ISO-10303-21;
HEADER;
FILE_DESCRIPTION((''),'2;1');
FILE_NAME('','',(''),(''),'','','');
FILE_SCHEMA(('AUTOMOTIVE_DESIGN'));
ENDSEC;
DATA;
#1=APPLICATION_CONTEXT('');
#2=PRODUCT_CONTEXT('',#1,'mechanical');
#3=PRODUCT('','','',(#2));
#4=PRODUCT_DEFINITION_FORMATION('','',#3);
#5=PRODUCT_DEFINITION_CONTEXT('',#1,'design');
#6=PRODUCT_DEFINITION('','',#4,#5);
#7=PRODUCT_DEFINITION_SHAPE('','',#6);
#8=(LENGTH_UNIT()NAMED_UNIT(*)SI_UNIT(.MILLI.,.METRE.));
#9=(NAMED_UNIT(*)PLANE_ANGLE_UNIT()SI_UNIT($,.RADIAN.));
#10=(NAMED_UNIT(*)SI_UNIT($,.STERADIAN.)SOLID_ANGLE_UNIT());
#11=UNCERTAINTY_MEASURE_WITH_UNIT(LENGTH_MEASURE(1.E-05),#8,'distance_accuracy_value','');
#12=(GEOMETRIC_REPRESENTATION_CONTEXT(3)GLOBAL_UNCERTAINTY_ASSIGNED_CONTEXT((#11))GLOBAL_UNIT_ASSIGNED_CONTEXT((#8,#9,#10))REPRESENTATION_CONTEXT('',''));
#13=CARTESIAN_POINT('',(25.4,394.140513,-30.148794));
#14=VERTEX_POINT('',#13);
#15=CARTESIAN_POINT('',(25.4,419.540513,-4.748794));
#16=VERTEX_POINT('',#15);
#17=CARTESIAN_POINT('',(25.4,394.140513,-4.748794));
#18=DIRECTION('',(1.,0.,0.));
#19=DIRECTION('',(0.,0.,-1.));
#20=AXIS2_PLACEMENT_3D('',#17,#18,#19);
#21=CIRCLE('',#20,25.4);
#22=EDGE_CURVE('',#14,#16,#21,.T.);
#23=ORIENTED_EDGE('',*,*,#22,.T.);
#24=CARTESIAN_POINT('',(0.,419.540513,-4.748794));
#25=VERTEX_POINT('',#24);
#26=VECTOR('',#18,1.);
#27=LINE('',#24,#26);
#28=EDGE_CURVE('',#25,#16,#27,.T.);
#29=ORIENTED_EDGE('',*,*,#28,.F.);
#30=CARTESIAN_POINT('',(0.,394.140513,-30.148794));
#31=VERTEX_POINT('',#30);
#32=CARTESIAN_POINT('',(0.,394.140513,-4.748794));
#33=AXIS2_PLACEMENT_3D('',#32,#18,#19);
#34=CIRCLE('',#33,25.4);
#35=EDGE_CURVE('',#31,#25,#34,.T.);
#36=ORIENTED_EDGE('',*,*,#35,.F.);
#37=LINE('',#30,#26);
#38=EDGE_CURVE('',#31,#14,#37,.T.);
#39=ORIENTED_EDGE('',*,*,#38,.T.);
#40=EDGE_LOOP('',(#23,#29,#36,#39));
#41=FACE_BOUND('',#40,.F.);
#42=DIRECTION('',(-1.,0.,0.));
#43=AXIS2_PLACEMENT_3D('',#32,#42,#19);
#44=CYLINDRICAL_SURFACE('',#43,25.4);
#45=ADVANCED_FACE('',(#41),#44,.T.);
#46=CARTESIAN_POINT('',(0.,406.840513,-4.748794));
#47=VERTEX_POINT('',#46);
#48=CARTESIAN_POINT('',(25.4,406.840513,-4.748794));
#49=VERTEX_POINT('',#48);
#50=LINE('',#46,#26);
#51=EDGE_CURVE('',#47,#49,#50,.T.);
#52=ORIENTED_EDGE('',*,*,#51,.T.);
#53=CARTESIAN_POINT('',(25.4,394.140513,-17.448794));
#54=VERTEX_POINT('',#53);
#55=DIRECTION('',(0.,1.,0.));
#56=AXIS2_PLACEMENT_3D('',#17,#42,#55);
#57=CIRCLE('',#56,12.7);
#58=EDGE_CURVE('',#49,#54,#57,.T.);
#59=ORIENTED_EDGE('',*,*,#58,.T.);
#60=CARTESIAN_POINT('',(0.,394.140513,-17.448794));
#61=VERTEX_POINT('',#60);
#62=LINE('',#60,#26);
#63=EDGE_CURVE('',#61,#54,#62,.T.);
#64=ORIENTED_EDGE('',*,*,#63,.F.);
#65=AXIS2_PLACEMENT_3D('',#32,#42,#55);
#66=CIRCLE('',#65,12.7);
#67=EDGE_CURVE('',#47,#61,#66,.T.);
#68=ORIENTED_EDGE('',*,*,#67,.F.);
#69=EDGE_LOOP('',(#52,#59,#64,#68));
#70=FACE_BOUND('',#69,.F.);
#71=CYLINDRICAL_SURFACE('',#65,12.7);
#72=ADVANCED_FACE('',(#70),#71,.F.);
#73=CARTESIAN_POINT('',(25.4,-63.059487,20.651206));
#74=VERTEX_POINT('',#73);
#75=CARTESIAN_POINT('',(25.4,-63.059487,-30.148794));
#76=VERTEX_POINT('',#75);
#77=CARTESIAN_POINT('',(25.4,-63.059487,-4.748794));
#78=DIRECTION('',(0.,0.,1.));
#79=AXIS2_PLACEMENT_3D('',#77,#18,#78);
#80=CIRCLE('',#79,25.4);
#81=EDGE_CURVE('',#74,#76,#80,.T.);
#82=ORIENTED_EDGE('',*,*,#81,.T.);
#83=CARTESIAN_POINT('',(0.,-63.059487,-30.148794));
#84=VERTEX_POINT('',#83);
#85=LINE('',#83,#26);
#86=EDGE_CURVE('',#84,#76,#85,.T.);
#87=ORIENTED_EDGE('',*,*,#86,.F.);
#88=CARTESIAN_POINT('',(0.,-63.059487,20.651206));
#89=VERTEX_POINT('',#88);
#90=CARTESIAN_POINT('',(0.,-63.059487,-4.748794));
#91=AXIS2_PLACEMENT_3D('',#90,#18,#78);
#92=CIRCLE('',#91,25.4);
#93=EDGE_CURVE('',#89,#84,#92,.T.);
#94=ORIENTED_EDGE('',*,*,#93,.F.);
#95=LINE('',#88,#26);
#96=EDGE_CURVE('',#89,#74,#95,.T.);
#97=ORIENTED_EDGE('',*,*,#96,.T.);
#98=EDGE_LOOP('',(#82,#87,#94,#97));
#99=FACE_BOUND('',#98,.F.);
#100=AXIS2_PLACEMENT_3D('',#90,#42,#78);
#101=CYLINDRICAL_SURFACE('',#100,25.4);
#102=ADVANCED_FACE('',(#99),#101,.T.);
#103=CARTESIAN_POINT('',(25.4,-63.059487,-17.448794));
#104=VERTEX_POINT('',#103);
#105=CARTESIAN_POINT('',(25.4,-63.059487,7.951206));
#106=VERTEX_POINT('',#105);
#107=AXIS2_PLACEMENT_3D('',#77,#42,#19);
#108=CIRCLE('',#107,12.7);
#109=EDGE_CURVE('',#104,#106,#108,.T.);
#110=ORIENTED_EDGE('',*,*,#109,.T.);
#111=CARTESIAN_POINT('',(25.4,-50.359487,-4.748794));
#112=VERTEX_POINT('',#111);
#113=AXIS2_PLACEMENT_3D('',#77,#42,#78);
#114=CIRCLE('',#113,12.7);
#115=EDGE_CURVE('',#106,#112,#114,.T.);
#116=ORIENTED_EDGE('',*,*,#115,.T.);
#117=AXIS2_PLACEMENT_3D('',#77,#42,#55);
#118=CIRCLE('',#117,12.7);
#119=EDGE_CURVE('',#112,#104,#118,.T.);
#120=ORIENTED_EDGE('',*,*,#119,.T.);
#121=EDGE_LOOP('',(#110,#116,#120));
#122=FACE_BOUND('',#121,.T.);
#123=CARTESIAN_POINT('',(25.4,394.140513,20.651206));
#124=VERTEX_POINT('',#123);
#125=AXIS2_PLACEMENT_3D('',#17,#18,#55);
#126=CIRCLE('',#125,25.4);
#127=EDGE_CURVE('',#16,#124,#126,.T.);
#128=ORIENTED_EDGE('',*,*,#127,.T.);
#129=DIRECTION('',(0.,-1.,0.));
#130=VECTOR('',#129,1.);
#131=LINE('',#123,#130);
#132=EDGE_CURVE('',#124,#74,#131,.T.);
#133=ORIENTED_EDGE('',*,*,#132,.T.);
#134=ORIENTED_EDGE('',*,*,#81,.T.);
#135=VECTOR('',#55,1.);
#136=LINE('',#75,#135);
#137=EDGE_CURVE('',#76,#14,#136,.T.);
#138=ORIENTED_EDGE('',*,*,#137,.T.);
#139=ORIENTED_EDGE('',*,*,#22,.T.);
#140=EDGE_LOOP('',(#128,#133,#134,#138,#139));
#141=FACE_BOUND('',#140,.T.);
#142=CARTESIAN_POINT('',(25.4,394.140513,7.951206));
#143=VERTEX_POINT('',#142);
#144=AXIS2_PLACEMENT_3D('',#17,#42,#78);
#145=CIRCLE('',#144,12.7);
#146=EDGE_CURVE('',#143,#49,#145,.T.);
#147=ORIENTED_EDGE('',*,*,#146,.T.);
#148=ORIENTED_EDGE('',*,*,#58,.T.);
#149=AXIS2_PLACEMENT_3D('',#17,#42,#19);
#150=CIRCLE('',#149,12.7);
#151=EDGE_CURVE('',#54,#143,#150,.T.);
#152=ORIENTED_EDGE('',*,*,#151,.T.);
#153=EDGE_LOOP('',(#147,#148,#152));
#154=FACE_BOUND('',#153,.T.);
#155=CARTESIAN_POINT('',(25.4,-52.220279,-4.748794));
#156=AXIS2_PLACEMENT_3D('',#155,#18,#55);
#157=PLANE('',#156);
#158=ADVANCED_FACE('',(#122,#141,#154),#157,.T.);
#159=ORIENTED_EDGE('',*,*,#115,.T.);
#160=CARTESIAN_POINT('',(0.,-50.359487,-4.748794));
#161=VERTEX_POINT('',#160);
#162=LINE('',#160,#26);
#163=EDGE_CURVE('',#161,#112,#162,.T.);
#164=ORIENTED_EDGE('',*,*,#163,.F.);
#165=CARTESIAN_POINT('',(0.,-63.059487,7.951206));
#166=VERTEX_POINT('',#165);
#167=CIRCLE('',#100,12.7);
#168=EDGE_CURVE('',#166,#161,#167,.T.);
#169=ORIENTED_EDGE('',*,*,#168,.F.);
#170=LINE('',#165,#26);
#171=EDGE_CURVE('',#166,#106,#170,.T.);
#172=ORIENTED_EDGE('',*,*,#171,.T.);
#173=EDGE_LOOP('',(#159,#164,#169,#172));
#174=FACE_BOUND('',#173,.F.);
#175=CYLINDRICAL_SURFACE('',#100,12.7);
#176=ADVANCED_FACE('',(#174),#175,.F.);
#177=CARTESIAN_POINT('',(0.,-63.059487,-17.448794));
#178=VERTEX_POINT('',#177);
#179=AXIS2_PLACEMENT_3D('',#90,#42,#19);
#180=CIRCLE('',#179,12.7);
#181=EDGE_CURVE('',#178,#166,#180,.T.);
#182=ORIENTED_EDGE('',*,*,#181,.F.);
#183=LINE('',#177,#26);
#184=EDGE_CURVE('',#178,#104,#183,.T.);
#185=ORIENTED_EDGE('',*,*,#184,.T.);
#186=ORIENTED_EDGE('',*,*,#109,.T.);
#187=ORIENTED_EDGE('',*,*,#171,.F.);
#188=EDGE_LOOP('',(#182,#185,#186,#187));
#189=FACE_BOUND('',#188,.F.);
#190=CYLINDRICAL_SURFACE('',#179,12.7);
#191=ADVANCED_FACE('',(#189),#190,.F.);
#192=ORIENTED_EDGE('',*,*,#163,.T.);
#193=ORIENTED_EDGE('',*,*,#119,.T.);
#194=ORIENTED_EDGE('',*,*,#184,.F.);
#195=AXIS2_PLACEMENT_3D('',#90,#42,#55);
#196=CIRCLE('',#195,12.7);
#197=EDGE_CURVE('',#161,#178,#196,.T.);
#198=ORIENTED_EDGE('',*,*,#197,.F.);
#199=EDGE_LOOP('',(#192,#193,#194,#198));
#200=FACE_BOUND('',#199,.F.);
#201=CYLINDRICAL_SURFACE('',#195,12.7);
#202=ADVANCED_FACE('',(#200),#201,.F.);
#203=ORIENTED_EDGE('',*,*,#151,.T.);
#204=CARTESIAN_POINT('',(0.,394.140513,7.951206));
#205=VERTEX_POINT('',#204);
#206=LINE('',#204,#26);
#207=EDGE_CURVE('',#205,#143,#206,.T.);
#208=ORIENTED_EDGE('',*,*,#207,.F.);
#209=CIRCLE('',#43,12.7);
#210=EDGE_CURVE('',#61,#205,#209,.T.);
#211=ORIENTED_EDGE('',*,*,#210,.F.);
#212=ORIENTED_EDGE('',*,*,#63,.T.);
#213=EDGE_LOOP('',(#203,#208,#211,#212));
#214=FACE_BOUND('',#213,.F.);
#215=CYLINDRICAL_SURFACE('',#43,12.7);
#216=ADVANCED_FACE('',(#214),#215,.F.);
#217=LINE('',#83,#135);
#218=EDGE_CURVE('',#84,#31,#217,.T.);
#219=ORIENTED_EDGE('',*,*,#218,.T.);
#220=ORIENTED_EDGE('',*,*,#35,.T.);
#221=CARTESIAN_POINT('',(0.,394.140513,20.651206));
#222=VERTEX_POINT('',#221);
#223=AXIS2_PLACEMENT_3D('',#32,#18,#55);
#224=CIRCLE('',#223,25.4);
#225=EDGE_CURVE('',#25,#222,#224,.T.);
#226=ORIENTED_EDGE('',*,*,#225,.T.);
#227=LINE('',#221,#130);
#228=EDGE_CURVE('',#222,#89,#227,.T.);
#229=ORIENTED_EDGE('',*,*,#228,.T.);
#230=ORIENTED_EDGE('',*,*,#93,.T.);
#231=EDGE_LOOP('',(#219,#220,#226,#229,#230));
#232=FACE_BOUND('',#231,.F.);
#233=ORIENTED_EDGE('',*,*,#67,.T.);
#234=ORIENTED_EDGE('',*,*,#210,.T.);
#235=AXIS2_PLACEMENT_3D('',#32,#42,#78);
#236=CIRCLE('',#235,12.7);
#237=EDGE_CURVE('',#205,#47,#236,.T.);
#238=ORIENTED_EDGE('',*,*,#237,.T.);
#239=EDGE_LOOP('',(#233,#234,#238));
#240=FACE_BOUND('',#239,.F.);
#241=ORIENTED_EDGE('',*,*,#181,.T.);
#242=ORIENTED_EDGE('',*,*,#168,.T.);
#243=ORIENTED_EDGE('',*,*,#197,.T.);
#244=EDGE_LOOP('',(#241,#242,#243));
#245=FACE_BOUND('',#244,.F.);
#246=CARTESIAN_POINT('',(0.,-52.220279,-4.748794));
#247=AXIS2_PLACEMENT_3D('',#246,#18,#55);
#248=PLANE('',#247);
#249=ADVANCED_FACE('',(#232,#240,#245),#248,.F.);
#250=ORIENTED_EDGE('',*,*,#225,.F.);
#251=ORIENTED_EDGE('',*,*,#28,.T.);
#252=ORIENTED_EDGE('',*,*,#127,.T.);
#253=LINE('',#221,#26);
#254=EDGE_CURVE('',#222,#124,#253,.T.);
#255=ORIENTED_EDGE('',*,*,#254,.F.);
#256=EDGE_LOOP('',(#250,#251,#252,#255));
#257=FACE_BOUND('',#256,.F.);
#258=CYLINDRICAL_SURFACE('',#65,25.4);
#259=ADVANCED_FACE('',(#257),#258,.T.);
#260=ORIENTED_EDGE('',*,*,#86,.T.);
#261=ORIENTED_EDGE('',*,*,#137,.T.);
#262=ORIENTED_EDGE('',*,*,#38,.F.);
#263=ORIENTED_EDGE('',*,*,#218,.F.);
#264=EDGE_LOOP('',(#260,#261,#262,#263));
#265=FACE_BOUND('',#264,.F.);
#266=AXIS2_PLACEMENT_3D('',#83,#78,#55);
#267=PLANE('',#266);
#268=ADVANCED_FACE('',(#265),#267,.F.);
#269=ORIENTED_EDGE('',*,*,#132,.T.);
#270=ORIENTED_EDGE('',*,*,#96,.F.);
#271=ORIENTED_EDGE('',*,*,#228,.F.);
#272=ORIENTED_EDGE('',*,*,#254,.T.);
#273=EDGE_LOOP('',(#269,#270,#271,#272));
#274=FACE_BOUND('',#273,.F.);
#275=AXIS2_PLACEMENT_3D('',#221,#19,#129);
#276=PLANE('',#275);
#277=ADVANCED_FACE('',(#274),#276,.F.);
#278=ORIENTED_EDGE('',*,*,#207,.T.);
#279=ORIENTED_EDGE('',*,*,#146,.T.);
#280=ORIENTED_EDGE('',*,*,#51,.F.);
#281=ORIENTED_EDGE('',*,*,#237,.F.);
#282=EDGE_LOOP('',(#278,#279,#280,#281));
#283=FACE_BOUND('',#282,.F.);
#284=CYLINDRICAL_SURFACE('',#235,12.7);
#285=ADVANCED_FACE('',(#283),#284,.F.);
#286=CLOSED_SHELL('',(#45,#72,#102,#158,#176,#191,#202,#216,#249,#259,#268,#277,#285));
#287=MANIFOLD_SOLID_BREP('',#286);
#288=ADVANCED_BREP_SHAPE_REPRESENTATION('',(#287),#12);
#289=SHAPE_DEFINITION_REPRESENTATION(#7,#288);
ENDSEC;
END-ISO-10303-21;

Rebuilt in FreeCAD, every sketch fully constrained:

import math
import FreeCAD as App
import Part
import Sketcher
from FreeCAD import Vector
Q = App.Units.Quantity

doc = App.newDocument("Part")
body = doc.addObject("PartDesign::Body", "Body")

sketch1 = body.newObject("Sketcher::SketchObject", "Sketch")
sketch1.AttachmentSupport = (doc.getObject("YZ_Plane"), [""])
sketch1.MapMode = "FlatFace"
sketch1.addGeometry([
    Part.LineSegment(Vector(-63, -30, 0), Vector(394, -30, 0)),
    Part.ArcOfCircle(Part.Circle(Vector(394, -5, 0), Vector(0, 0, 1), 25), math.radians(-90), math.radians(0)),
    Part.ArcOfCircle(Part.Circle(Vector(394, -5, 0), Vector(0, 0, 1), 25), math.radians(0), math.radians(90)),
    Part.LineSegment(Vector(394, 21, 0), Vector(-63, 21, 0)),
    Part.ArcOfCircle(Part.Circle(Vector(-63, -5, 0), Vector(0, 0, 1), 25), math.radians(90), math.radians(270)),
    Part.ArcOfCircle(Part.Circle(Vector(-63, -5, 0), Vector(0, 0, 1), 13), math.radians(0), math.radians(90)),
    Part.ArcOfCircle(Part.Circle(Vector(-63, -5, 0), Vector(0, 0, 1), 13), math.radians(-90), math.radians(0)),
    Part.ArcOfCircle(Part.Circle(Vector(-63, -5, 0), Vector(0, 0, 1), 13), math.radians(90), math.radians(270)),
    Part.ArcOfCircle(Part.Circle(Vector(394, -5, 0), Vector(0, 0, 1), 13), math.radians(90), math.radians(270)),
    Part.ArcOfCircle(Part.Circle(Vector(394, -5, 0), Vector(0, 0, 1), 13), math.radians(0), math.radians(90)),
    Part.ArcOfCircle(Part.Circle(Vector(394, -5, 0), Vector(0, 0, 1), 13), math.radians(-90), math.radians(0)),
], False)
sketch1.addConstraint([
    Sketcher.Constraint("Tangent", 0, 2, 1, 1),
    Sketcher.Constraint("Tangent", 1, 2, 2, 1),
    Sketcher.Constraint("Tangent", 2, 2, 3, 1),
    Sketcher.Constraint("Tangent", 3, 2, 4, 1),
    Sketcher.Constraint("Tangent", 4, 2, 0, 1),
    Sketcher.Constraint("Tangent", 5, 1, 6, 2),
    Sketcher.Constraint("Tangent", 6, 1, 7, 2),
    Sketcher.Constraint("Tangent", 7, 1, 5, 2),
    Sketcher.Constraint("Tangent", 8, 1, 9, 2),
    Sketcher.Constraint("Tangent", 9, 1, 10, 2),
    Sketcher.Constraint("Tangent", 10, 1, 8, 2),
    Sketcher.Constraint("Horizontal", 0),
    Sketcher.Constraint("Horizontal", 3),
    Sketcher.Constraint("Coincident", 5, 3, 4, 3),
    Sketcher.Constraint("Coincident", 8, 3, 1, 3),
    Sketcher.Constraint("Equal", 1, 2),
    Sketcher.Constraint("Equal", 7, 8),
    Sketcher.Constraint("Horizontal", 10, 3, 1, 2),
    Sketcher.Constraint("Horizontal", 1, 2, 5, 1),
    Sketcher.Constraint("Horizontal", 5, 1, 9, 1),
    Sketcher.Constraint("Vertical", 4, 2, 6, 1),
    Sketcher.Constraint("Vertical", 6, 1, 7, 1),
    Sketcher.Constraint("Vertical", 2, 2, 8, 1),
    Sketcher.Constraint("Vertical", 8, 1, 10, 1),
    Sketcher.Constraint("Radius", 1, Q("1 in")),
    Sketcher.Constraint("Radius", 5, Q("0.5 in")),
    Sketcher.Constraint("DistanceX", 0, 1, 0, 2, Q("18 in")),
    Sketcher.Constraint("DistanceX", -1, 1, 1, 3, Q("394.140513 mm")),
    Sketcher.Constraint("DistanceY", 1, 3, -1, 1, Q("4.748794 mm")),
])
pad1 = body.newObject("PartDesign::Pad", "Pad")
pad1.Profile = sketch1
pad1.Length = Q("1 in")

doc.recompute()
